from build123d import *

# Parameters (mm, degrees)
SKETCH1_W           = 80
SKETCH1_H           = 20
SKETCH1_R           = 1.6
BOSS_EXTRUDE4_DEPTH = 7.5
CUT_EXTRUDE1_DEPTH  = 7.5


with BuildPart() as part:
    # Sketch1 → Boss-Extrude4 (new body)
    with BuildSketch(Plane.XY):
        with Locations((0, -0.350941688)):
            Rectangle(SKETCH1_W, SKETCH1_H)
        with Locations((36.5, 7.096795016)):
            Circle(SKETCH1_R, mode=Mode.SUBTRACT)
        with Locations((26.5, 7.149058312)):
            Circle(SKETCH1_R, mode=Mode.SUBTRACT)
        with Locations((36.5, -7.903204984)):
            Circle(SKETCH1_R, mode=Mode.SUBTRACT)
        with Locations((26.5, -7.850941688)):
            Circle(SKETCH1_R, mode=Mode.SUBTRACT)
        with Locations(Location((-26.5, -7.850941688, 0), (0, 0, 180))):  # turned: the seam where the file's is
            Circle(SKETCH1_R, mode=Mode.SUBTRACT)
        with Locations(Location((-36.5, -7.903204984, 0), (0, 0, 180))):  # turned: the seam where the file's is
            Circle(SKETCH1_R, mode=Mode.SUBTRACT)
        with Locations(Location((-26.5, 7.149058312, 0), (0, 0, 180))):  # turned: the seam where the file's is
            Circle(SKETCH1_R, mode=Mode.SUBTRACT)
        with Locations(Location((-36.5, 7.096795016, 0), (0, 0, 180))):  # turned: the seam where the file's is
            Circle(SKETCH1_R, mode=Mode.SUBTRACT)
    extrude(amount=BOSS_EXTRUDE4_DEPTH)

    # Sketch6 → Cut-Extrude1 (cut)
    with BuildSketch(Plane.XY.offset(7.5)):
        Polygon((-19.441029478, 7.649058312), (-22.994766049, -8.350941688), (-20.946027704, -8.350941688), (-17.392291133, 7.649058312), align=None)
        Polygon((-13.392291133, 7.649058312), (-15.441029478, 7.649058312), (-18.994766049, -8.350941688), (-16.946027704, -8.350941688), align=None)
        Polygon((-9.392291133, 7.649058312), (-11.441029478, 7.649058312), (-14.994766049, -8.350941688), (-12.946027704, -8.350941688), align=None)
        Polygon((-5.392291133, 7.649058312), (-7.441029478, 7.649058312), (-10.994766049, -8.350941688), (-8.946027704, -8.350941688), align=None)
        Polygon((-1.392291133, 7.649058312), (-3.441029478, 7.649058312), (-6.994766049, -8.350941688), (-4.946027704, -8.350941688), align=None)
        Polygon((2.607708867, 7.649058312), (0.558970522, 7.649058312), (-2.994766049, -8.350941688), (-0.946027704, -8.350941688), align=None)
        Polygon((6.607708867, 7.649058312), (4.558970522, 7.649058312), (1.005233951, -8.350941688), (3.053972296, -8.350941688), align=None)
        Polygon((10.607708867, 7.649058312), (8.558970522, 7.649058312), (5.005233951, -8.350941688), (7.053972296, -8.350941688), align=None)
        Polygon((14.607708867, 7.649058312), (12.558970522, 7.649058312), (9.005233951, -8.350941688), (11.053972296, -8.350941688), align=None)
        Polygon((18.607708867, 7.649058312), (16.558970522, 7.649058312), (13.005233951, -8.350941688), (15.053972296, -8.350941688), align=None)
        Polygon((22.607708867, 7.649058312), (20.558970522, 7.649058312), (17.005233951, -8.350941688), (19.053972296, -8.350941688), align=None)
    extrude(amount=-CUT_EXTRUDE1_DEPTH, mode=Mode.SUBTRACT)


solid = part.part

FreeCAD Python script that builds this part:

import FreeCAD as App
import Part
import Sketcher

V = App.Vector
Q = App.Units.Quantity

doc = App.newDocument("Part")
params = doc.addObject("Spreadsheet::Sheet", "Params")
for row, (alias, value) in enumerate([
    ("sketch1_diameter", "3.2 mm"),
    ("sketch1_width", "80 mm"),
    ("sketch1_height", "20 mm"),
    ("pad1_length", "7.5 mm"),
    ("pocket1_length", "7.5 mm"),
], start=1):
    params.set(f"A{row}", alias)
    params.set(f"B{row}", "=" + value)
    params.setAlias(f"B{row}", alias)

body = doc.addObject("PartDesign::Body", "Body")

sketch1 = body.newObject("Sketcher::SketchObject", "Sketch")
sketch1.AttachmentSupport = (doc.getObject("XY_Plane"), [""])
sketch1.MapMode = "FlatFace"
sketch1.addGeometry([
    Part.LineSegment(V(-40, 9.649058, 0), V(-40, -10.350942, 0)),
    Part.LineSegment(V(-40, -10.350942, 0), V(40, -10.350942, 0)),
    Part.LineSegment(V(40, -10.350942, 0), V(40, 9.649058, 0)),
    Part.LineSegment(V(40, 9.649058, 0), V(-40, 9.649058, 0)),
    Part.Circle(V(-36.5, -7.903205, 0), V(0, 0, 1), 1.6),
    Part.Circle(V(-26.5, -7.850942, 0), V(0, 0, 1), 1.6),
    Part.Circle(V(26.5, -7.850942, 0), V(0, 0, 1), 1.6),
    Part.Circle(V(36.5, -7.903205, 0), V(0, 0, 1), 1.6),
    Part.Circle(V(-36.5, 7.096795, 0), V(0, 0, 1), 1.6),
    Part.Circle(V(-26.5, 7.149058, 0), V(0, 0, 1), 1.6),
    Part.Circle(V(26.5, 7.149058, 0), V(0, 0, 1), 1.6),
    Part.Circle(V(36.5, 7.096795, 0), V(0, 0, 1), 1.6),
], False)
sketch1.addConstraint([
    Sketcher.Constraint("Coincident", 0, 2, 1, 1),
    Sketcher.Constraint("Coincident", 1, 2, 2, 1),
    Sketcher.Constraint("Coincident", 2, 2, 3, 1),
    Sketcher.Constraint("Coincident", 3, 2, 0, 1),
    Sketcher.Constraint("Vertical", 0),
    Sketcher.Constraint("Horizontal", 1),
    Sketcher.Constraint("Vertical", 2),
    Sketcher.Constraint("Horizontal", 3),
    Sketcher.Constraint("Equal", 4, 5),
    Sketcher.Constraint("Equal", 5, 6),
    Sketcher.Constraint("Equal", 6, 7),
    Sketcher.Constraint("Equal", 7, 8),
    Sketcher.Constraint("Equal", 8, 9),
    Sketcher.Constraint("Equal", 9, 10),
    Sketcher.Constraint("Equal", 10, 11),
    Sketcher.Constraint("Symmetric", 5, 3, 6, 3, -2),
    Sketcher.Constraint("Symmetric", 4, 3, 7, 3, -2),
    Sketcher.Constraint("Symmetric", 9, 3, 10, 3, -2),
    Sketcher.Constraint("Symmetric", 8, 3, 11, 3, -2),
    Sketcher.Constraint("Vertical", 4, 3, 8, 3),
    Sketcher.Constraint("Vertical", 5, 3, 9, 3),
    Sketcher.Constraint("Diameter", 4, Q("3.2 mm")),
    Sketcher.Constraint("DistanceX", 1, 1, 1, 2, Q("80 mm")),
    Sketcher.Constraint("DistanceY", 0, 2, 0, 1, Q("20 mm")),
    Sketcher.Constraint("DistanceX", 0, 2, -1, 1, Q("40 mm")),
    Sketcher.Constraint("DistanceX", 4, 3, 5, 3, Q("10 mm")),
    Sketcher.Constraint("DistanceX", 5, 3, 6, 3, Q("53 mm")),
    Sketcher.Constraint("DistanceY", 4, 3, 8, 3, Q("15 mm")),
    Sketcher.Constraint("DistanceY", 5, 3, 9, 3, Q("15 mm")),
    Sketcher.Constraint("DistanceY", 0, 2, 5, 3, Q("2.5 mm")),
    Sketcher.Constraint("DistanceY", 5, 3, -1, 1, Q("7.850942 mm")),
    Sketcher.Constraint("DistanceY", 4, 3, -1, 1, Q("7.903205 mm")),
])
sketch1.setExpression("Constraints[21]", "Params.sketch1_diameter")
sketch1.setExpression("Constraints[22]", "Params.sketch1_width")
sketch1.setExpression("Constraints[23]", "Params.sketch1_height")
pad1 = body.newObject("PartDesign::Pad", "Pad")
pad1.Profile = sketch1
pad1.setExpression("Length", "Params.pad1_length")

sketch2 = body.newObject("Sketcher::SketchObject", "Sketch001")
sketch2.AttachmentSupport = (doc.getObject("XY_Plane"), [""])
sketch2.MapMode = "FlatFace"
sketch2.AttachmentOffset = App.Placement(V(0, 0, 7.5), App.Rotation())
sketch2.addGeometry([
    Part.LineSegment(V(-19.441029, 7.649058, 0), V(-22.994766, -8.350942, 0)),
    Part.LineSegment(V(-22.994766, -8.350942, 0), V(-20.946028, -8.350942, 0)),
    Part.LineSegment(V(-20.946028, -8.350942, 0), V(-17.392291, 7.649058, 0)),
    Part.LineSegment(V(-17.392291, 7.649058, 0), V(-19.441029, 7.649058, 0)),
    Part.LineSegment(V(-13.392291, 7.649058, 0), V(-15.441029, 7.649058, 0)),
    Part.LineSegment(V(-15.441029, 7.649058, 0), V(-18.994766, -8.350942, 0)),
    Part.LineSegment(V(-18.994766, -8.350942, 0), V(-16.946028, -8.350942, 0)),
    Part.LineSegment(V(-16.946028, -8.350942, 0), V(-13.392291, 7.649058, 0)),
    Part.LineSegment(V(-9.392291, 7.649058, 0), V(-11.441029, 7.649058, 0)),
    Part.LineSegment(V(-11.441029, 7.649058, 0), V(-14.994766, -8.350942, 0)),
    Part.LineSegment(V(-14.994766, -8.350942, 0), V(-12.946028, -8.350942, 0)),
    Part.LineSegment(V(-12.946028, -8.350942, 0), V(-9.392291, 7.649058, 0)),
    Part.LineSegment(V(-5.392291, 7.649058, 0), V(-7.441029, 7.649058, 0)),
    Part.LineSegment(V(-7.441029, 7.649058, 0), V(-10.994766, -8.350942, 0)),
    Part.LineSegment(V(-10.994766, -8.350942, 0), V(-8.946028, -8.350942, 0)),
    Part.LineSegment(V(-8.946028, -8.350942, 0), V(-5.392291, 7.649058, 0)),
    Part.LineSegment(V(-1.392291, 7.649058, 0), V(-3.441029, 7.649058, 0)),
    Part.LineSegment(V(-3.441029, 7.649058, 0), V(-6.994766, -8.350942, 0)),
    Part.LineSegment(V(-6.994766, -8.350942, 0), V(-4.946028, -8.350942, 0)),
    Part.LineSegment(V(-4.946028, -8.350942, 0), V(-1.392291, 7.649058, 0)),
    Part.LineSegment(V(2.607709, 7.649058, 0), V(0.558971, 7.649058, 0)),
    Part.LineSegment(V(0.558971, 7.649058, 0), V(-2.994766, -8.350942, 0)),
    Part.LineSegment(V(-2.994766, -8.350942, 0), V(-0.946028, -8.350942, 0)),
    Part.LineSegment(V(-0.946028, -8.350942, 0), V(2.607709, 7.649058, 0)),
    Part.LineSegment(V(6.607709, 7.649058, 0), V(4.558971, 7.649058, 0)),
    Part.LineSegment(V(4.558971, 7.649058, 0), V(1.005234, -8.350942, 0)),
    Part.LineSegment(V(1.005234, -8.350942, 0), V(3.053972, -8.350942, 0)),
    Part.LineSegment(V(3.053972, -8.350942, 0), V(6.607709, 7.649058, 0)),
    Part.LineSegment(V(10.607709, 7.649058, 0), V(8.558971, 7.649058, 0)),
    Part.LineSegment(V(8.558971, 7.649058, 0), V(5.005234, -8.350942, 0)),
    Part.LineSegment(V(5.005234, -8.350942, 0), V(7.053972, -8.350942, 0)),
    Part.LineSegment(V(7.053972, -8.350942, 0), V(10.607709, 7.649058, 0)),
    Part.LineSegment(V(14.607709, 7.649058, 0), V(12.558971, 7.649058, 0)),
    Part.LineSegment(V(12.558971, 7.649058, 0), V(9.005234, -8.350942, 0)),
    Part.LineSegment(V(9.005234, -8.350942, 0), V(11.053972, -8.350942, 0)),
    Part.LineSegment(V(11.053972, -8.350942, 0), V(14.607709, 7.649058, 0)),
    Part.LineSegment(V(18.607709, 7.649058, 0), V(16.558971, 7.649058, 0)),
    Part.LineSegment(V(16.558971, 7.649058, 0), V(13.005234, -8.350942, 0)),
    Part.LineSegment(V(13.005234, -8.350942, 0), V(15.053972, -8.350942, 0)),
    Part.LineSegment(V(15.053972, -8.350942, 0), V(18.607709, 7.649058, 0)),
    Part.LineSegment(V(22.607709, 7.649058, 0), V(20.558971, 7.649058, 0)),
    Part.LineSegment(V(20.558971, 7.649058, 0), V(17.005234, -8.350942, 0)),
    Part.LineSegment(V(17.005234, -8.350942, 0), V(19.053972, -8.350942, 0)),
    Part.LineSegment(V(19.053972, -8.350942, 0), V(22.607709, 7.649058, 0)),
], False)
sketch2.addConstraint([
    Sketcher.Constraint("Coincident", 0, 2, 1, 1),
    Sketcher.Constraint("Coincident", 1, 2, 2, 1),
    Sketcher.Constraint("Coincident", 2, 2, 3, 1),
    Sketcher.Constraint("Coincident", 3, 2, 0, 1),
    Sketcher.Constraint("Coincident", 4, 2, 5, 1),
    Sketcher.Constraint("Coincident", 5, 2, 6, 1),
    Sketcher.Constraint("Coincident", 6, 2, 7, 1),
    Sketcher.Constraint("Coincident", 7, 2, 4, 1),
    Sketcher.Constraint("Coincident", 8, 2, 9, 1),
    Sketcher.Constraint("Coincident", 9, 2, 10, 1),
    Sketcher.Constraint("Coincident", 10, 2, 11, 1),
    Sketcher.Constraint("Coincident", 11, 2, 8, 1),
    Sketcher.Constraint("Coincident", 12, 2, 13, 1),
    Sketcher.Constraint("Coincident", 13, 2, 14, 1),
    Sketcher.Constraint("Coincident", 14, 2, 15, 1),
    Sketcher.Constraint("Coincident", 15, 2, 12, 1),
    Sketcher.Constraint("Coincident", 16, 2, 17, 1),
    Sketcher.Constraint("Coincident", 17, 2, 18, 1),
    Sketcher.Constraint("Coincident", 18, 2, 19, 1),
    Sketcher.Constraint("Coincident", 19, 2, 16, 1),
    Sketcher.Constraint("Coincident", 20, 2, 21, 1),
    Sketcher.Constraint("Coincident", 21, 2, 22, 1),
    Sketcher.Constraint("Coincident", 22, 2, 23, 1),
    Sketcher.Constraint("Coincident", 23, 2, 20, 1),
    Sketcher.Constraint("Coincident", 24, 2, 25, 1),
    Sketcher.Constraint("Coincident", 25, 2, 26, 1),
    Sketcher.Constraint("Coincident", 26, 2, 27, 1),
    Sketcher.Constraint("Coincident", 27, 2, 24, 1),
    Sketcher.Constraint("Coincident", 28, 2, 29, 1),
    Sketcher.Constraint("Coincident", 29, 2, 30, 1),
    Sketcher.Constraint("Coincident", 30, 2, 31, 1),
    Sketcher.Constraint("Coincident", 31, 2, 28, 1),
    Sketcher.Constraint("Coincident", 32, 2, 33, 1),
    Sketcher.Constraint("Coincident", 33, 2, 34, 1),
    Sketcher.Constraint("Coincident", 34, 2, 35, 1),
    Sketcher.Constraint("Coincident", 35, 2, 32, 1),
    Sketcher.Constraint("Coincident", 36, 2, 37, 1),
    Sketcher.Constraint("Coincident", 37, 2, 38, 1),
    Sketcher.Constraint("Coincident", 38, 2, 39, 1),
    Sketcher.Constraint("Coincident", 39, 2, 36, 1),
    Sketcher.Constraint("Coincident", 40, 2, 41, 1),
    Sketcher.Constraint("Coincident", 41, 2, 42, 1),
    Sketcher.Constraint("Coincident", 42, 2, 43, 1),
    Sketcher.Constraint("Coincident", 43, 2, 40, 1),
    Sketcher.Constraint("Horizontal", 1),
    Sketcher.Constraint("Horizontal", 3),
    Sketcher.Constraint("Horizontal", 4),
    Sketcher.Constraint("Horizontal", 6),
    Sketcher.Constraint("Horizontal", 8),
    Sketcher.Constraint("Horizontal", 10),
    Sketcher.Constraint("Horizontal", 12),
    Sketcher.Constraint("Horizontal", 14),
    Sketcher.Constraint("Horizontal", 16),
    Sketcher.Constraint("Horizontal", 18),
    Sketcher.Constraint("Horizontal", 20),
    Sketcher.Constraint("Horizontal", 22),
    Sketcher.Constraint("Horizontal", 24),
    Sketcher.Constraint("Horizontal", 26),
    Sketcher.Constraint("Horizontal", 28),
    Sketcher.Constraint("Horizontal", 30),
    Sketcher.Constraint("Horizontal", 32),
    Sketcher.Constraint("Horizontal", 34),
    Sketcher.Constraint("Horizontal", 36),
    Sketcher.Constraint("Horizontal", 38),
    Sketcher.Constraint("Horizontal", 40),
    Sketcher.Constraint("Horizontal", 42),
    Sketcher.Constraint("Parallel", 0, 2),
    Sketcher.Constraint("Parallel", 2, 5),
    Sketcher.Constraint("Parallel", 5, 7),
    Sketcher.Constraint("Parallel", 7, 9),
    Sketcher.Constraint("Parallel", 9, 11),
    Sketcher.Constraint("Parallel", 11, 13),
    Sketcher.Constraint("Parallel", 13, 15),
    Sketcher.Constraint("Parallel", 15, 17),
    Sketcher.Constraint("Parallel", 17, 19),
    Sketcher.Constraint("Parallel", 19, 21),
    Sketcher.Constraint("Parallel", 21, 23),
    Sketcher.Constraint("Parallel", 23, 25),
    Sketcher.Constraint("Parallel", 25, 27),
    Sketcher.Constraint("Parallel", 27, 29),
    Sketcher.Constraint("Parallel", 29, 31),
    Sketcher.Constraint("Parallel", 31, 33),
    Sketcher.Constraint("Parallel", 33, 35),
    Sketcher.Constraint("Parallel", 35, 37),
    Sketcher.Constraint("Parallel", 37, 39),
    Sketcher.Constraint("Parallel", 39, 41),
    Sketcher.Constraint("Parallel", 41, 43),
    Sketcher.Constraint("Horizontal", 3, 2, 4, 2),
    Sketcher.Constraint("Horizontal", 1, 2, 5, 2),
    Sketcher.Constraint("Horizontal", 7, 2, 8, 2),
    Sketcher.Constraint("Horizontal", 6, 2, 9, 2),
    Sketcher.Constraint("Horizontal", 11, 2, 12, 2),
    Sketcher.Constraint("Horizontal", 10, 2, 13, 2),
    Sketcher.Constraint("Horizontal", 15, 2, 16, 2),
    Sketcher.Constraint("Horizontal", 14, 2, 17, 2),
    Sketcher.Constraint("Horizontal", 19, 2, 20, 2),
    Sketcher.Constraint("Horizontal", 18, 2, 21, 2),
    Sketcher.Constraint("Horizontal", 23, 2, 24, 2),
    Sketcher.Constraint("Horizontal", 22, 2, 25, 2),
    Sketcher.Constraint("Horizontal", 27, 2, 28, 2),
    Sketcher.Constraint("Horizontal", 26, 2, 29, 2),
    Sketcher.Constraint("Horizontal", 31, 2, 32, 2),
    Sketcher.Constraint("Horizontal", 30, 2, 33, 2),
    Sketcher.Constraint("Horizontal", 35, 2, 36, 2),
    Sketcher.Constraint("Horizontal", 34, 2, 37, 2),
    Sketcher.Constraint("Horizontal", 39, 2, 40, 2),
    Sketcher.Constraint("Horizontal", 38, 2, 41, 2),
    Sketcher.Constraint("Equal", 3, 4),
    Sketcher.Constraint("Equal", 6, 8),
    Sketcher.Constraint("Equal", 10, 12),
    Sketcher.Constraint("Equal", 14, 16),
    Sketcher.Constraint("Equal", 18, 20),
    Sketcher.Constraint("Equal", 22, 24),
    Sketcher.Constraint("Equal", 26, 28),
    Sketcher.Constraint("Equal", 30, 32),
    Sketcher.Constraint("Equal", 34, 36),
    Sketcher.Constraint("Equal", 38, 40),
    Sketcher.Constraint("DistanceY", 1, 2, 2, 2, Q("16 mm")),
    Sketcher.Constraint("DistanceX", 3, 2, 4, 2, Q("4 mm")),
    Sketcher.Constraint("DistanceX", 4, 2, 8, 2, Q("4 mm")),
    Sketcher.Constraint("DistanceX", 8, 2, 12, 2, Q("4 mm")),
    Sketcher.Constraint("DistanceX", 12, 2, 16, 2, Q("4 mm")),
    Sketcher.Constraint("DistanceX", 16, 2, 20, 2, Q("4 mm")),
    Sketcher.Constraint("DistanceX", 20, 2, 24, 2, Q("4 mm")),
    Sketcher.Constraint("DistanceX", 24, 2, 28, 2, Q("4 mm")),
    Sketcher.Constraint("DistanceX", 28, 2, 32, 2, Q("4 mm")),
    Sketcher.Constraint("DistanceX", 32, 2, 36, 2, Q("4 mm")),
    Sketcher.Constraint("DistanceX", 36, 2, 40, 2, Q("4 mm")),
    Sketcher.Constraint("DistanceX", 1, 2, 3, 2, Q("1.504998 mm")),
    Sketcher.Constraint("DistanceX", 1, 1, 1, 2, Q("2.048738 mm")),
    Sketcher.Constraint("DistanceY", 0, 2, -1, 1, Q("8.350942 mm")),
    Sketcher.Constraint("DistanceX", 2, 2, -1, 1, Q("17.392291 mm")),
])
pocket1 = body.newObject("PartDesign::Pocket", "Pocket")
pocket1.Profile = sketch2
pocket1.setExpression("Length", "Params.pocket1_length")

doc.recompute()
